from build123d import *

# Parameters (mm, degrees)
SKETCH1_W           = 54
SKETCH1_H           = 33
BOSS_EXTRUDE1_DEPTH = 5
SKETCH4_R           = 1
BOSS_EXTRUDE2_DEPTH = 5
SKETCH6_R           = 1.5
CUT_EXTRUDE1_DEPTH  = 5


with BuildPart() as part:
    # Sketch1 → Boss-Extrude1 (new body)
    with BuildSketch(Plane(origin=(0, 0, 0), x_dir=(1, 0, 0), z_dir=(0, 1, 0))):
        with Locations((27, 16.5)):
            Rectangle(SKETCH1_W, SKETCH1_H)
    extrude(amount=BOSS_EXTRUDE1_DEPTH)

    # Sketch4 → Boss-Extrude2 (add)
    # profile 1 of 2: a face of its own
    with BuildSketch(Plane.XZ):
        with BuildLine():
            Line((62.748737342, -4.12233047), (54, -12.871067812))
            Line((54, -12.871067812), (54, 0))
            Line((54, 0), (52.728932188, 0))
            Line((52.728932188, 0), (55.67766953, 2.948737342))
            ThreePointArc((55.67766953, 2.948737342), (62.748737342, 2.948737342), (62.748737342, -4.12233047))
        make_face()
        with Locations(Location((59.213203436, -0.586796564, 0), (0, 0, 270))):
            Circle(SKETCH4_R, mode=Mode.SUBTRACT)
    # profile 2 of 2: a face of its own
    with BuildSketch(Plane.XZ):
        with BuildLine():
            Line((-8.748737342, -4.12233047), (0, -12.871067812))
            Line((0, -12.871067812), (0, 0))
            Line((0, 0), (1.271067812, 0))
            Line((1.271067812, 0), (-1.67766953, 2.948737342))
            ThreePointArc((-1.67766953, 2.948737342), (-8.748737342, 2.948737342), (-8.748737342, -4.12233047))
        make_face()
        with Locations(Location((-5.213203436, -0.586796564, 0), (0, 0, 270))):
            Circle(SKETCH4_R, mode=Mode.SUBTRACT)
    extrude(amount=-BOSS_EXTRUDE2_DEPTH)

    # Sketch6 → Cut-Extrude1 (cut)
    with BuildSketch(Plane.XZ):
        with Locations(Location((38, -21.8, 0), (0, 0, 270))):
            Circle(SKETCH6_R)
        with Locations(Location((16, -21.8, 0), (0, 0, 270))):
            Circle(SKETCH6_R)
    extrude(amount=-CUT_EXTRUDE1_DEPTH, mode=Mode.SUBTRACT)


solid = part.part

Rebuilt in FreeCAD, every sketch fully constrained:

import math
import FreeCAD as App
import Part
import Sketcher

doc = App.newDocument("Part")
params = doc.addObject("Spreadsheet::Sheet", "Params")
for row, (alias, value) in enumerate([
    ("sketch1_width", "54 mm"),
    ("sketch1_height", "33 mm"),
    ("pad1_length", "5 mm"),
    ("sketch2_diameter", "2 mm"),
    ("sketch2_radius", "5 mm"),
    ("pad2_length", "5 mm"),
    ("sketch3_diameter", "3 mm"),
    ("pocket1_length", "5 mm"),
], start=1):
    params.set(f"A{row}", alias)
    params.set(f"B{row}", "=" + value)
    params.setAlias(f"B{row}", alias)

body = doc.addObject("PartDesign::Body", "Body")

sketch1 = body.newObject("Sketcher::SketchObject", "Sketch")
sketch1.AttachmentSupport = (doc.getObject("XZ_Plane"), [""])
sketch1.MapMode = "FlatFace"
sketch1.addGeometry([
    Part.LineSegment(App.Vector(0, -33, 0), App.Vector(0, 0, 0)),
    Part.LineSegment(App.Vector(0, 0, 0), App.Vector(54, 0, 0)),
    Part.LineSegment(App.Vector(54, 0, 0), App.Vector(54, -33, 0)),
    Part.LineSegment(App.Vector(54, -33, 0), App.Vector(0, -33, 0)),
], False)
sketch1.addConstraint([
    Sketcher.Constraint("Coincident", 0, 2, 1, 1),
    Sketcher.Constraint("Coincident", 1, 2, 2, 1),
    Sketcher.Constraint("Coincident", 2, 2, 3, 1),
    Sketcher.Constraint("Coincident", 3, 2, 0, 1),
    Sketcher.Constraint("Vertical", 0),
    Sketcher.Constraint("Horizontal", 1),
    Sketcher.Constraint("Vertical", 2),
    Sketcher.Constraint("Horizontal", 3),
    Sketcher.Constraint("Coincident", 0, 2, -1, 1),
    Sketcher.Constraint("DistanceX", 1, 1, 1, 2, 54.0),
    Sketcher.Constraint("DistanceY", 0, 1, 0, 2, 33.0),
])
sketch1.setExpression("Constraints[9]", "Params.sketch1_width")
sketch1.setExpression("Constraints[10]", "Params.sketch1_height")
pad1 = body.newObject("PartDesign::Pad", "Pad")
pad1.Profile = sketch1
pad1.setExpression("Length", "Params.pad1_length")
pad1.Reversed = True

sketch2 = body.newObject("Sketcher::SketchObject", "Sketch001")
sketch2.AttachmentSupport = (doc.getObject("XZ_Plane"), [""])
sketch2.MapMode = "FlatFace"
sketch2.addGeometry([
    Part.LineSegment(App.Vector(54, -12.9, 0), App.Vector(62.7, -4.1, 0)),
    Part.ArcOfCircle(Part.Circle(App.Vector(59.2, -0.6, 0), App.Vector(0, 0, 1), 5), math.radians(-45), math.radians(135)),
    Part.LineSegment(App.Vector(55.7, 2.9, 0), App.Vector(52.7, 0, 0)),
    Part.LineSegment(App.Vector(52.7, 0, 0), App.Vector(54, 0, 0)),
    Part.LineSegment(App.Vector(54, 0, 0), App.Vector(54, -12.9, 0)),
    Part.Circle(App.Vector(59.2, -0.6, 0), App.Vector(0, 0, 1), 1),
    Part.LineSegment(App.Vector(-8.7, -4.1, 0), App.Vector(0, -12.9, 0)),
    Part.LineSegment(App.Vector(0, -12.9, 0), App.Vector(0, 0, 0)),
    Part.LineSegment(App.Vector(0, 0, 0), App.Vector(1.3, 0, 0)),
    Part.LineSegment(App.Vector(1.3, 0, 0), App.Vector(-1.7, 2.9, 0)),
    Part.ArcOfCircle(Part.Circle(App.Vector(-5.2, -0.6, 0), App.Vector(0, 0, 1), 5), math.radians(45), math.radians(225)),
    Part.Circle(App.Vector(-5.2, -0.6, 0), App.Vector(0, 0, 1), 1),
], False)
sketch2.addConstraint([
    Sketcher.Constraint("Tangent", 0, 2, 1, 1),
    Sketcher.Constraint("Tangent", 1, 2, 2, 1),
    Sketcher.Constraint("Coincident", 2, 2, 3, 1),
    Sketcher.Constraint("Coincident", 3, 2, 4, 1),
    Sketcher.Constraint("Coincident", 4, 2, 0, 1),
    Sketcher.Constraint("Coincident", 6, 2, 7, 1),
    Sketcher.Constraint("Coincident", 7, 2, 8, 1),
    Sketcher.Constraint("Coincident", 8, 2, 9, 1),
    Sketcher.Constraint("Tangent", 9, 2, 10, 1),
    Sketcher.Constraint("Tangent", 10, 2, 6, 1),
    Sketcher.Constraint("Horizontal", 3),
    Sketcher.Constraint("Vertical", 4),
    Sketcher.Constraint("Vertical", 7),
    Sketcher.Constraint("Horizontal", 8),
    Sketcher.Constraint("Coincident", 7, 2, -1, 1),
    Sketcher.Constraint("Coincident", 5, 3, 1, 3),
    Sketcher.Constraint("Coincident", 11, 3, 10, 3),
    Sketcher.Constraint("Equal", 1, 10),
    Sketcher.Constraint("Equal", 5, 11),
    Sketcher.Constraint("PointOnObject", 2, 2, -1),
    Sketcher.Constraint("Parallel", 0, 2),
    Sketcher.Constraint("Perpendicular", 2, 6),
    Sketcher.Constraint("Parallel", 6, 9),
    Sketcher.Constraint("Horizontal", 5, 3, 10, 3),
    Sketcher.Constraint("Horizontal", 4, 2, 6, 2),
    Sketcher.Constraint("Horizontal", 1, 2, 9, 2),
    Sketcher.Constraint("Diameter", 5, 2.0),
    Sketcher.Constraint("Radius", 1, 5.0),
    Sketcher.Constraint("DistanceX", -1, 1, 3, 2, 54.0),
    Sketcher.Constraint("DistanceX", 3, 1, 3, 2, 1.271068),
    Sketcher.Constraint("DistanceY", 0, 2, -1, 1, 4.12233),
])
sketch2.setExpression("Constraints[26]", "Params.sketch2_diameter")
sketch2.setExpression("Constraints[27]", "Params.sketch2_radius")
pad2 = body.newObject("PartDesign::Pad", "Pad001")
pad2.Profile = sketch2
pad2.setExpression("Length", "Params.pad2_length")
pad2.Reversed = True

sketch3 = body.newObject("Sketcher::SketchObject", "Sketch002")
sketch3.AttachmentSupport = (doc.getObject("XZ_Plane"), [""])
sketch3.MapMode = "FlatFace"
sketch3.addGeometry([
    Part.Circle(App.Vector(38, -21.8, 0), App.Vector(0, 0, 1), 1.5),
    Part.Circle(App.Vector(16, -21.8, 0), App.Vector(0, 0, 1), 1.5),
], False)
sketch3.addConstraint([
    Sketcher.Constraint("Equal", 0, 1),
    Sketcher.Constraint("Horizontal", 0, 3, 1, 3),
    Sketcher.Constraint("Diameter", 0, 3.0),
    Sketcher.Constraint("DistanceX", -1, 1, 0, 3, 38.0),
    Sketcher.Constraint("DistanceX", -1, 1, 1, 3, 16.0),
    Sketcher.Constraint("DistanceY", 0, 3, -1, 1, 21.8),
])
sketch3.setExpression("Constraints[2]", "Params.sketch3_diameter")
pocket1 = body.newObject("PartDesign::Pocket", "Pocket")
pocket1.Profile = sketch3
pocket1.setExpression("Length", "Params.pocket1_length")

doc.recompute()
